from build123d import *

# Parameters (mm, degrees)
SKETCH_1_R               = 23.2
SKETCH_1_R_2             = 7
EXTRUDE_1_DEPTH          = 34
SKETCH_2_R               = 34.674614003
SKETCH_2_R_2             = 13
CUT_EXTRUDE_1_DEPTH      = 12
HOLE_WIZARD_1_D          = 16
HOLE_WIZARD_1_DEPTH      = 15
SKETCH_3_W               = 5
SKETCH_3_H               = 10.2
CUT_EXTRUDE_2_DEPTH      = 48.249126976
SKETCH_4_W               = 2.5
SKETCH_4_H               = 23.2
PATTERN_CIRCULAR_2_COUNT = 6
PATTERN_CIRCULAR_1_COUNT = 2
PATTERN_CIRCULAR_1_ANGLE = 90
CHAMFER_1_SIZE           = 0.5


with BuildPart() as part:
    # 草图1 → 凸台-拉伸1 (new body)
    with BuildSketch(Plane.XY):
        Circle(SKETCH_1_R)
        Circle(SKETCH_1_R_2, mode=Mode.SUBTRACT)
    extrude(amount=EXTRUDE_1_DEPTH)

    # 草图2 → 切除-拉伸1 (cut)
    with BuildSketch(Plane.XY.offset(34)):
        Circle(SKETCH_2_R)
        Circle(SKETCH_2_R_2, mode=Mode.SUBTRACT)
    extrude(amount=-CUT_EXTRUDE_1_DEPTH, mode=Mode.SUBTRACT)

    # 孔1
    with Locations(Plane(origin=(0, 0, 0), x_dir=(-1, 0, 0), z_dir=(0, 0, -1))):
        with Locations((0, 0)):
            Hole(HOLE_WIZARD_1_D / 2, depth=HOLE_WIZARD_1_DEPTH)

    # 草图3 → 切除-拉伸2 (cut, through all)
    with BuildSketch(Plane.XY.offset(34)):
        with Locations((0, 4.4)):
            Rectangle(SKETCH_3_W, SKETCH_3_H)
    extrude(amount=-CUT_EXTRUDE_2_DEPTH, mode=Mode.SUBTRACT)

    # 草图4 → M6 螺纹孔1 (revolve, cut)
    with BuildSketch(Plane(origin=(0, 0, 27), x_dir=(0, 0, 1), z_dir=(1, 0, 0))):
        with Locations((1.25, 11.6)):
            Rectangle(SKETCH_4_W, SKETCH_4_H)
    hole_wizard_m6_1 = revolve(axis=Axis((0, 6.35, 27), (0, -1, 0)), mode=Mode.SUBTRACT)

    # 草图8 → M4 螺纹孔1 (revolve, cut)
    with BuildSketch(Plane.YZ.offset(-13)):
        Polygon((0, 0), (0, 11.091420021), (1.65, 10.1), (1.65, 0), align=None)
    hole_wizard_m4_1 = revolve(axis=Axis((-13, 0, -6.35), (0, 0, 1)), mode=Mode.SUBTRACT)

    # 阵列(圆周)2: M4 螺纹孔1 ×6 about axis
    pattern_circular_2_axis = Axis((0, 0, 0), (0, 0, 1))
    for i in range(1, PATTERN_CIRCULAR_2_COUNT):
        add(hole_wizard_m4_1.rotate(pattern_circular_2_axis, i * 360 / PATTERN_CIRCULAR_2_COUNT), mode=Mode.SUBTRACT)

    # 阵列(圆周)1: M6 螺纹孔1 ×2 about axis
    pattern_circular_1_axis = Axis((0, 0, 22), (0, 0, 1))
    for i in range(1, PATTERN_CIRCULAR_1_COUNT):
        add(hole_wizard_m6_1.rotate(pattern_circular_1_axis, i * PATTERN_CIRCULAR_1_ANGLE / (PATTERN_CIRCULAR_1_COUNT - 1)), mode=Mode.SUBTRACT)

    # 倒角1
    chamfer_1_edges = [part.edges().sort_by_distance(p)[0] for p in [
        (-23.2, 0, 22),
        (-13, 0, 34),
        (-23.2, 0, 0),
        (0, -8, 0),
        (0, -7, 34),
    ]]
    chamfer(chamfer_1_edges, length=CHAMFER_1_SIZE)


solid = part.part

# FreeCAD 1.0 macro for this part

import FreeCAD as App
import Part
import Sketcher

V = App.Vector
Q = App.Units.Quantity


def edges_at(feature, points):
    """Names of the edges that pass closest to the given points."""
    edges = feature.Shape.Edges
    near = lambda p: min(range(len(edges)), key=lambda i: edges[i].distToShape(Part.Vertex(*p))[0])
    return sorted({f"Edge{near(p) + 1}" for p in points})


def add_polygon(sketch, points):
    """Adds a closed chain of lines whose ends are joined by coincident constraints."""
    first, n = sketch.GeometryCount, len(points)
    for a, b in zip(points, points[1:] + points[:1]):
        sketch.addGeometry(Part.LineSegment(App.Vector(*a, 0), App.Vector(*b, 0)), False)
    for i in range(n):
        sketch.addConstraint(Sketcher.Constraint("Coincident", first + i, 2, first + (i + 1) % n, 1))

doc = App.newDocument("Part")
params = doc.addObject("Spreadsheet::Sheet", "Params")
for row, (alias, value) in enumerate([
    ("sketch1_diameter", "14 mm"),
    ("sketch1_diameter2", "46.4 mm"),
    ("pad1_length", "34 mm"),
    ("sketch2_diameter", "26 mm"),
    ("pocket1_length", "12 mm"),
    ("sketch3_diameter", "16 mm"),
    ("hole_diameter", "16 mm"),
    ("hole_depth", "15 mm"),
    ("sketch4_width", "5 mm"),
    ("sketch4_height", "10.2 mm"),
    ("sketch5_width", "23.2 mm"),
    ("sketch5_height", "2.5 mm"),
    ("groove_angle", "360 deg"),
    ("sketch6_height", "10.1 mm"),
    ("sketch6_width", "1.65 mm"),
    ("groove2_angle", "360 deg"),
    ("chamfer_size", "0.5 mm"),
], start=1):
    params.set(f"A{row}", alias)
    params.set(f"B{row}", "=" + value)
    params.setAlias(f"B{row}", alias)

body = doc.addObject("PartDesign::Body", "Body")

# Sketch on XY plane
sketch1 = doc.addObject("Sketcher::SketchObject", "Sketch")
body.addObject(sketch1)
sketch1.AttachmentSupport = (doc.XY_Plane, [""])
sketch1.MapMode = "FlatFace"
sketch1.addGeometry([
    Part.Circle(V(0, 0, 0), V(0, 0, 1), 23.2),
    Part.Circle(V(0, 0, 0), V(0, 0, 1), 7),
], False)
sketch1.addConstraint([
    Sketcher.Constraint("Coincident", 0, 3, -1, 1),
    Sketcher.Constraint("Coincident", 1, 3, -1, 1),
    Sketcher.Constraint("Diameter", 1, 14.0),
    Sketcher.Constraint("Diameter", 0, 46.4),
])
sketch1.setExpression("Constraints[2]", "Params.sketch1_diameter")
sketch1.setExpression("Constraints[3]", "Params.sketch1_diameter2")
pad1 = doc.addObject("PartDesign::Pad", "Pad")
body.addObject(pad1)
pad1.Profile = sketch1
pad1.setExpression("Length", "Params.pad1_length")

# Sketch on XY plane
sketch2 = doc.addObject("Sketcher::SketchObject", "Sketch001")
body.addObject(sketch2)
sketch2.AttachmentSupport = (doc.XY_Plane, [""])
sketch2.MapMode = "FlatFace"
sketch2.AttachmentOffset = App.Placement(V(0, 0, 34), App.Rotation())
sketch2.addGeometry([
    Part.Circle(V(0, 0, 0), V(0, 0, 1), 34.674614),
    Part.Circle(V(0, 0, 0), V(0, 0, 1), 13),
], False)
sketch2.addConstraint([
    Sketcher.Constraint("Coincident", 0, 3, -1, 1),
    Sketcher.Constraint("Coincident", 1, 3, -1, 1),
    Sketcher.Constraint("Diameter", 1, 26.0),
    Sketcher.Constraint("Diameter", 0, 69.349228),
])
sketch2.setExpression("Constraints[2]", "Params.sketch2_diameter")
pocket1 = doc.addObject("PartDesign::Pocket", "Pocket")
body.addObject(pocket1)
pocket1.Profile = sketch2
pocket1.setExpression("Length", "Params.pocket1_length")

# Sketch on XY plane
sketch3 = doc.addObject("Sketcher::SketchObject", "Sketch002")
body.addObject(sketch3)
sketch3.AttachmentSupport = (doc.XY_Plane, [""])
sketch3.MapMode = "FlatFace"
sketch3.addGeometry(Part.Circle(V(0, 0, 0), V(0, 0, 1), 8), False)
sketch3.addConstraint([
    Sketcher.Constraint("Coincident", 0, 3, -1, 1),
    Sketcher.Constraint("Diameter", 0, 16.0),
])
sketch3.setExpression("Constraints[1]", "Params.sketch3_diameter")
doc.recompute()
hole = doc.addObject("PartDesign::Hole", "Hole")
body.addObject(hole)
hole.Profile = sketch3
hole.ThreadType = "None"
hole.setExpression("Diameter", "Params.hole_diameter")
hole.DepthType = "Dimension"
hole.setExpression("Depth", "Params.hole_depth")
hole.DrillPoint = "Flat"
hole.Reversed = True

# Sketch on XY plane
sketch4 = doc.addObject("Sketcher::SketchObject", "Sketch003")
body.addObject(sketch4)
sketch4.AttachmentSupport = (doc.XY_Plane, [""])
sketch4.MapMode = "FlatFace"
sketch4.AttachmentOffset = App.Placement(V(0, 0, 34), App.Rotation())
add_polygon(sketch4, [(-2.5, 9.5), (-2.5, -0.7), (2.5, -0.7), (2.5, 9.5)])  # lines 0-3
sketch4.addConstraint([
    Sketcher.Constraint("Vertical", 0),
    Sketcher.Constraint("Horizontal", 1),
    Sketcher.Constraint("Vertical", 2),
    Sketcher.Constraint("Horizontal", 3),
    Sketcher.Constraint("DistanceX", 1, 1, 1, 2, 5.0),
    Sketcher.Constraint("DistanceY", 0, 2, 0, 1, 10.2),
    Sketcher.Constraint("DistanceX", 0, 2, -1, 1, 2.5),
    Sketcher.Constraint("DistanceY", 0, 2, -1, 1, 0.7),
])
sketch4.setExpression("Constraints[8]", "Params.sketch4_width")
sketch4.setExpression("Constraints[9]", "Params.sketch4_height")
pocket2 = doc.addObject("PartDesign::Pocket", "Pocket001")
body.addObject(pocket2)
pocket2.Profile = sketch4
pocket2.Type = "ThroughAll"

# Sketch on YZ plane
sketch5 = doc.addObject("Sketcher::SketchObject", "Sketch004")
body.addObject(sketch5)
sketch5.AttachmentSupport = (doc.YZ_Plane, [""])
sketch5.MapMode = "FlatFace"
add_polygon(sketch5, [(-23.2, 27), (0, 27), (0, 29.5), (-23.2, 29.5)])  # lines 0-3
sketch5.addGeometry(Part.LineSegment(V(0, 27, 0), V(-23.2, 27, 0)), True)  # axis
sketch5.addConstraint([
    Sketcher.Constraint("Horizontal", 0),
    Sketcher.Constraint("Vertical", 1),
    Sketcher.Constraint("Horizontal", 2),
    Sketcher.Constraint("Vertical", 3),
    Sketcher.Constraint("Horizontal", 4),
    Sketcher.Constraint("Coincident", 4, 1, 0, 2),
    Sketcher.Constraint("PointOnObject", 0, 2, -2),
    Sketcher.Constraint("Vertical", 2, 2, 4, 2),
    Sketcher.Constraint("DistanceX", 0, 1, 0, 2, 23.2),
    Sketcher.Constraint("DistanceY", 1, 1, 1, 2, 2.5),
    Sketcher.Constraint("DistanceY", -1, 1, 0, 2, 27.0),
])
sketch5.setExpression("Constraints[12]", "Params.sketch5_width")
sketch5.setExpression("Constraints[13]", "Params.sketch5_height")
groove = doc.addObject("PartDesign::Groove", "Groove")
body.addObject(groove)
groove.Profile = sketch5
groove.ReferenceAxis = (sketch5, ["Axis0"])
groove.setExpression("Angle", "Params.groove_angle")

# Sketch on YZ plane
sketch6 = doc.addObject("Sketcher::SketchObject", "Sketch005")
body.addObject(sketch6)
sketch6.AttachmentSupport = (doc.YZ_Plane, [""])
sketch6.MapMode = "FlatFace"
sketch6.AttachmentOffset = App.Placement(V(0, 0, -13), App.Rotation())
add_polygon(sketch6, [(0, 11.09142), (0, 0), (1.65, 0), (1.65, 10.1)])  # lines 0-3
sketch6.addConstraint([
    Sketcher.Constraint("Vertical", 0),
    Sketcher.Constraint("Horizontal", 1),
    Sketcher.Constraint("Vertical", 2),
    Sketcher.Constraint("Coincident", 0, 2, -1, 1),
    Sketcher.Constraint("Angle", 3, Q("149 deg")),
    Sketcher.Constraint("DistanceY", 2, 1, 2, 2, 10.1),
    Sketcher.Constraint("DistanceX", 1, 1, 1, 2, 1.65),
])
sketch6.setExpression("Constraints[9]", "Params.sketch6_height")
sketch6.setExpression("Constraints[10]", "Params.sketch6_width")
groove2 = doc.addObject("PartDesign::Groove", "Groove001")
body.addObject(groove2)
groove2.Profile = sketch6
groove2.ReferenceAxis = (sketch6, ["V_Axis"])
groove2.setExpression("Angle", "Params.groove2_angle")
doc.recompute()

polarpattern = doc.addObject("PartDesign::PolarPattern", "PolarPattern")
body.addObject(polarpattern)
polarpattern.Originals = [groove2]
polarpattern.Axis = (doc.Z_Axis, [""])
polarpattern.Angle = 360
polarpattern.Occurrences = 6
body.Tip = polarpattern
doc.recompute()

polarpattern2 = doc.addObject("PartDesign::PolarPattern", "PolarPattern001")
body.addObject(polarpattern2)
polarpattern2.Originals = [groove]
polarpattern2.Axis = (doc.Z_Axis, [""])
polarpattern2.Angle = 90
polarpattern2.Occurrences = 2
body.Tip = polarpattern2
doc.recompute()

chamfer = doc.addObject("PartDesign::Chamfer", "Chamfer")
body.addObject(chamfer)
chamfer.Base = (polarpattern2, edges_at(polarpattern2, [
    (-23.2, 0, 22),
    (-13, 0, 34),
    (-23.2, 0, 0),
    (0, -8, 0),
    (0, -7, 34),
]))
chamfer.setExpression("Size", "Params.chamfer_size")

doc.recompute()
